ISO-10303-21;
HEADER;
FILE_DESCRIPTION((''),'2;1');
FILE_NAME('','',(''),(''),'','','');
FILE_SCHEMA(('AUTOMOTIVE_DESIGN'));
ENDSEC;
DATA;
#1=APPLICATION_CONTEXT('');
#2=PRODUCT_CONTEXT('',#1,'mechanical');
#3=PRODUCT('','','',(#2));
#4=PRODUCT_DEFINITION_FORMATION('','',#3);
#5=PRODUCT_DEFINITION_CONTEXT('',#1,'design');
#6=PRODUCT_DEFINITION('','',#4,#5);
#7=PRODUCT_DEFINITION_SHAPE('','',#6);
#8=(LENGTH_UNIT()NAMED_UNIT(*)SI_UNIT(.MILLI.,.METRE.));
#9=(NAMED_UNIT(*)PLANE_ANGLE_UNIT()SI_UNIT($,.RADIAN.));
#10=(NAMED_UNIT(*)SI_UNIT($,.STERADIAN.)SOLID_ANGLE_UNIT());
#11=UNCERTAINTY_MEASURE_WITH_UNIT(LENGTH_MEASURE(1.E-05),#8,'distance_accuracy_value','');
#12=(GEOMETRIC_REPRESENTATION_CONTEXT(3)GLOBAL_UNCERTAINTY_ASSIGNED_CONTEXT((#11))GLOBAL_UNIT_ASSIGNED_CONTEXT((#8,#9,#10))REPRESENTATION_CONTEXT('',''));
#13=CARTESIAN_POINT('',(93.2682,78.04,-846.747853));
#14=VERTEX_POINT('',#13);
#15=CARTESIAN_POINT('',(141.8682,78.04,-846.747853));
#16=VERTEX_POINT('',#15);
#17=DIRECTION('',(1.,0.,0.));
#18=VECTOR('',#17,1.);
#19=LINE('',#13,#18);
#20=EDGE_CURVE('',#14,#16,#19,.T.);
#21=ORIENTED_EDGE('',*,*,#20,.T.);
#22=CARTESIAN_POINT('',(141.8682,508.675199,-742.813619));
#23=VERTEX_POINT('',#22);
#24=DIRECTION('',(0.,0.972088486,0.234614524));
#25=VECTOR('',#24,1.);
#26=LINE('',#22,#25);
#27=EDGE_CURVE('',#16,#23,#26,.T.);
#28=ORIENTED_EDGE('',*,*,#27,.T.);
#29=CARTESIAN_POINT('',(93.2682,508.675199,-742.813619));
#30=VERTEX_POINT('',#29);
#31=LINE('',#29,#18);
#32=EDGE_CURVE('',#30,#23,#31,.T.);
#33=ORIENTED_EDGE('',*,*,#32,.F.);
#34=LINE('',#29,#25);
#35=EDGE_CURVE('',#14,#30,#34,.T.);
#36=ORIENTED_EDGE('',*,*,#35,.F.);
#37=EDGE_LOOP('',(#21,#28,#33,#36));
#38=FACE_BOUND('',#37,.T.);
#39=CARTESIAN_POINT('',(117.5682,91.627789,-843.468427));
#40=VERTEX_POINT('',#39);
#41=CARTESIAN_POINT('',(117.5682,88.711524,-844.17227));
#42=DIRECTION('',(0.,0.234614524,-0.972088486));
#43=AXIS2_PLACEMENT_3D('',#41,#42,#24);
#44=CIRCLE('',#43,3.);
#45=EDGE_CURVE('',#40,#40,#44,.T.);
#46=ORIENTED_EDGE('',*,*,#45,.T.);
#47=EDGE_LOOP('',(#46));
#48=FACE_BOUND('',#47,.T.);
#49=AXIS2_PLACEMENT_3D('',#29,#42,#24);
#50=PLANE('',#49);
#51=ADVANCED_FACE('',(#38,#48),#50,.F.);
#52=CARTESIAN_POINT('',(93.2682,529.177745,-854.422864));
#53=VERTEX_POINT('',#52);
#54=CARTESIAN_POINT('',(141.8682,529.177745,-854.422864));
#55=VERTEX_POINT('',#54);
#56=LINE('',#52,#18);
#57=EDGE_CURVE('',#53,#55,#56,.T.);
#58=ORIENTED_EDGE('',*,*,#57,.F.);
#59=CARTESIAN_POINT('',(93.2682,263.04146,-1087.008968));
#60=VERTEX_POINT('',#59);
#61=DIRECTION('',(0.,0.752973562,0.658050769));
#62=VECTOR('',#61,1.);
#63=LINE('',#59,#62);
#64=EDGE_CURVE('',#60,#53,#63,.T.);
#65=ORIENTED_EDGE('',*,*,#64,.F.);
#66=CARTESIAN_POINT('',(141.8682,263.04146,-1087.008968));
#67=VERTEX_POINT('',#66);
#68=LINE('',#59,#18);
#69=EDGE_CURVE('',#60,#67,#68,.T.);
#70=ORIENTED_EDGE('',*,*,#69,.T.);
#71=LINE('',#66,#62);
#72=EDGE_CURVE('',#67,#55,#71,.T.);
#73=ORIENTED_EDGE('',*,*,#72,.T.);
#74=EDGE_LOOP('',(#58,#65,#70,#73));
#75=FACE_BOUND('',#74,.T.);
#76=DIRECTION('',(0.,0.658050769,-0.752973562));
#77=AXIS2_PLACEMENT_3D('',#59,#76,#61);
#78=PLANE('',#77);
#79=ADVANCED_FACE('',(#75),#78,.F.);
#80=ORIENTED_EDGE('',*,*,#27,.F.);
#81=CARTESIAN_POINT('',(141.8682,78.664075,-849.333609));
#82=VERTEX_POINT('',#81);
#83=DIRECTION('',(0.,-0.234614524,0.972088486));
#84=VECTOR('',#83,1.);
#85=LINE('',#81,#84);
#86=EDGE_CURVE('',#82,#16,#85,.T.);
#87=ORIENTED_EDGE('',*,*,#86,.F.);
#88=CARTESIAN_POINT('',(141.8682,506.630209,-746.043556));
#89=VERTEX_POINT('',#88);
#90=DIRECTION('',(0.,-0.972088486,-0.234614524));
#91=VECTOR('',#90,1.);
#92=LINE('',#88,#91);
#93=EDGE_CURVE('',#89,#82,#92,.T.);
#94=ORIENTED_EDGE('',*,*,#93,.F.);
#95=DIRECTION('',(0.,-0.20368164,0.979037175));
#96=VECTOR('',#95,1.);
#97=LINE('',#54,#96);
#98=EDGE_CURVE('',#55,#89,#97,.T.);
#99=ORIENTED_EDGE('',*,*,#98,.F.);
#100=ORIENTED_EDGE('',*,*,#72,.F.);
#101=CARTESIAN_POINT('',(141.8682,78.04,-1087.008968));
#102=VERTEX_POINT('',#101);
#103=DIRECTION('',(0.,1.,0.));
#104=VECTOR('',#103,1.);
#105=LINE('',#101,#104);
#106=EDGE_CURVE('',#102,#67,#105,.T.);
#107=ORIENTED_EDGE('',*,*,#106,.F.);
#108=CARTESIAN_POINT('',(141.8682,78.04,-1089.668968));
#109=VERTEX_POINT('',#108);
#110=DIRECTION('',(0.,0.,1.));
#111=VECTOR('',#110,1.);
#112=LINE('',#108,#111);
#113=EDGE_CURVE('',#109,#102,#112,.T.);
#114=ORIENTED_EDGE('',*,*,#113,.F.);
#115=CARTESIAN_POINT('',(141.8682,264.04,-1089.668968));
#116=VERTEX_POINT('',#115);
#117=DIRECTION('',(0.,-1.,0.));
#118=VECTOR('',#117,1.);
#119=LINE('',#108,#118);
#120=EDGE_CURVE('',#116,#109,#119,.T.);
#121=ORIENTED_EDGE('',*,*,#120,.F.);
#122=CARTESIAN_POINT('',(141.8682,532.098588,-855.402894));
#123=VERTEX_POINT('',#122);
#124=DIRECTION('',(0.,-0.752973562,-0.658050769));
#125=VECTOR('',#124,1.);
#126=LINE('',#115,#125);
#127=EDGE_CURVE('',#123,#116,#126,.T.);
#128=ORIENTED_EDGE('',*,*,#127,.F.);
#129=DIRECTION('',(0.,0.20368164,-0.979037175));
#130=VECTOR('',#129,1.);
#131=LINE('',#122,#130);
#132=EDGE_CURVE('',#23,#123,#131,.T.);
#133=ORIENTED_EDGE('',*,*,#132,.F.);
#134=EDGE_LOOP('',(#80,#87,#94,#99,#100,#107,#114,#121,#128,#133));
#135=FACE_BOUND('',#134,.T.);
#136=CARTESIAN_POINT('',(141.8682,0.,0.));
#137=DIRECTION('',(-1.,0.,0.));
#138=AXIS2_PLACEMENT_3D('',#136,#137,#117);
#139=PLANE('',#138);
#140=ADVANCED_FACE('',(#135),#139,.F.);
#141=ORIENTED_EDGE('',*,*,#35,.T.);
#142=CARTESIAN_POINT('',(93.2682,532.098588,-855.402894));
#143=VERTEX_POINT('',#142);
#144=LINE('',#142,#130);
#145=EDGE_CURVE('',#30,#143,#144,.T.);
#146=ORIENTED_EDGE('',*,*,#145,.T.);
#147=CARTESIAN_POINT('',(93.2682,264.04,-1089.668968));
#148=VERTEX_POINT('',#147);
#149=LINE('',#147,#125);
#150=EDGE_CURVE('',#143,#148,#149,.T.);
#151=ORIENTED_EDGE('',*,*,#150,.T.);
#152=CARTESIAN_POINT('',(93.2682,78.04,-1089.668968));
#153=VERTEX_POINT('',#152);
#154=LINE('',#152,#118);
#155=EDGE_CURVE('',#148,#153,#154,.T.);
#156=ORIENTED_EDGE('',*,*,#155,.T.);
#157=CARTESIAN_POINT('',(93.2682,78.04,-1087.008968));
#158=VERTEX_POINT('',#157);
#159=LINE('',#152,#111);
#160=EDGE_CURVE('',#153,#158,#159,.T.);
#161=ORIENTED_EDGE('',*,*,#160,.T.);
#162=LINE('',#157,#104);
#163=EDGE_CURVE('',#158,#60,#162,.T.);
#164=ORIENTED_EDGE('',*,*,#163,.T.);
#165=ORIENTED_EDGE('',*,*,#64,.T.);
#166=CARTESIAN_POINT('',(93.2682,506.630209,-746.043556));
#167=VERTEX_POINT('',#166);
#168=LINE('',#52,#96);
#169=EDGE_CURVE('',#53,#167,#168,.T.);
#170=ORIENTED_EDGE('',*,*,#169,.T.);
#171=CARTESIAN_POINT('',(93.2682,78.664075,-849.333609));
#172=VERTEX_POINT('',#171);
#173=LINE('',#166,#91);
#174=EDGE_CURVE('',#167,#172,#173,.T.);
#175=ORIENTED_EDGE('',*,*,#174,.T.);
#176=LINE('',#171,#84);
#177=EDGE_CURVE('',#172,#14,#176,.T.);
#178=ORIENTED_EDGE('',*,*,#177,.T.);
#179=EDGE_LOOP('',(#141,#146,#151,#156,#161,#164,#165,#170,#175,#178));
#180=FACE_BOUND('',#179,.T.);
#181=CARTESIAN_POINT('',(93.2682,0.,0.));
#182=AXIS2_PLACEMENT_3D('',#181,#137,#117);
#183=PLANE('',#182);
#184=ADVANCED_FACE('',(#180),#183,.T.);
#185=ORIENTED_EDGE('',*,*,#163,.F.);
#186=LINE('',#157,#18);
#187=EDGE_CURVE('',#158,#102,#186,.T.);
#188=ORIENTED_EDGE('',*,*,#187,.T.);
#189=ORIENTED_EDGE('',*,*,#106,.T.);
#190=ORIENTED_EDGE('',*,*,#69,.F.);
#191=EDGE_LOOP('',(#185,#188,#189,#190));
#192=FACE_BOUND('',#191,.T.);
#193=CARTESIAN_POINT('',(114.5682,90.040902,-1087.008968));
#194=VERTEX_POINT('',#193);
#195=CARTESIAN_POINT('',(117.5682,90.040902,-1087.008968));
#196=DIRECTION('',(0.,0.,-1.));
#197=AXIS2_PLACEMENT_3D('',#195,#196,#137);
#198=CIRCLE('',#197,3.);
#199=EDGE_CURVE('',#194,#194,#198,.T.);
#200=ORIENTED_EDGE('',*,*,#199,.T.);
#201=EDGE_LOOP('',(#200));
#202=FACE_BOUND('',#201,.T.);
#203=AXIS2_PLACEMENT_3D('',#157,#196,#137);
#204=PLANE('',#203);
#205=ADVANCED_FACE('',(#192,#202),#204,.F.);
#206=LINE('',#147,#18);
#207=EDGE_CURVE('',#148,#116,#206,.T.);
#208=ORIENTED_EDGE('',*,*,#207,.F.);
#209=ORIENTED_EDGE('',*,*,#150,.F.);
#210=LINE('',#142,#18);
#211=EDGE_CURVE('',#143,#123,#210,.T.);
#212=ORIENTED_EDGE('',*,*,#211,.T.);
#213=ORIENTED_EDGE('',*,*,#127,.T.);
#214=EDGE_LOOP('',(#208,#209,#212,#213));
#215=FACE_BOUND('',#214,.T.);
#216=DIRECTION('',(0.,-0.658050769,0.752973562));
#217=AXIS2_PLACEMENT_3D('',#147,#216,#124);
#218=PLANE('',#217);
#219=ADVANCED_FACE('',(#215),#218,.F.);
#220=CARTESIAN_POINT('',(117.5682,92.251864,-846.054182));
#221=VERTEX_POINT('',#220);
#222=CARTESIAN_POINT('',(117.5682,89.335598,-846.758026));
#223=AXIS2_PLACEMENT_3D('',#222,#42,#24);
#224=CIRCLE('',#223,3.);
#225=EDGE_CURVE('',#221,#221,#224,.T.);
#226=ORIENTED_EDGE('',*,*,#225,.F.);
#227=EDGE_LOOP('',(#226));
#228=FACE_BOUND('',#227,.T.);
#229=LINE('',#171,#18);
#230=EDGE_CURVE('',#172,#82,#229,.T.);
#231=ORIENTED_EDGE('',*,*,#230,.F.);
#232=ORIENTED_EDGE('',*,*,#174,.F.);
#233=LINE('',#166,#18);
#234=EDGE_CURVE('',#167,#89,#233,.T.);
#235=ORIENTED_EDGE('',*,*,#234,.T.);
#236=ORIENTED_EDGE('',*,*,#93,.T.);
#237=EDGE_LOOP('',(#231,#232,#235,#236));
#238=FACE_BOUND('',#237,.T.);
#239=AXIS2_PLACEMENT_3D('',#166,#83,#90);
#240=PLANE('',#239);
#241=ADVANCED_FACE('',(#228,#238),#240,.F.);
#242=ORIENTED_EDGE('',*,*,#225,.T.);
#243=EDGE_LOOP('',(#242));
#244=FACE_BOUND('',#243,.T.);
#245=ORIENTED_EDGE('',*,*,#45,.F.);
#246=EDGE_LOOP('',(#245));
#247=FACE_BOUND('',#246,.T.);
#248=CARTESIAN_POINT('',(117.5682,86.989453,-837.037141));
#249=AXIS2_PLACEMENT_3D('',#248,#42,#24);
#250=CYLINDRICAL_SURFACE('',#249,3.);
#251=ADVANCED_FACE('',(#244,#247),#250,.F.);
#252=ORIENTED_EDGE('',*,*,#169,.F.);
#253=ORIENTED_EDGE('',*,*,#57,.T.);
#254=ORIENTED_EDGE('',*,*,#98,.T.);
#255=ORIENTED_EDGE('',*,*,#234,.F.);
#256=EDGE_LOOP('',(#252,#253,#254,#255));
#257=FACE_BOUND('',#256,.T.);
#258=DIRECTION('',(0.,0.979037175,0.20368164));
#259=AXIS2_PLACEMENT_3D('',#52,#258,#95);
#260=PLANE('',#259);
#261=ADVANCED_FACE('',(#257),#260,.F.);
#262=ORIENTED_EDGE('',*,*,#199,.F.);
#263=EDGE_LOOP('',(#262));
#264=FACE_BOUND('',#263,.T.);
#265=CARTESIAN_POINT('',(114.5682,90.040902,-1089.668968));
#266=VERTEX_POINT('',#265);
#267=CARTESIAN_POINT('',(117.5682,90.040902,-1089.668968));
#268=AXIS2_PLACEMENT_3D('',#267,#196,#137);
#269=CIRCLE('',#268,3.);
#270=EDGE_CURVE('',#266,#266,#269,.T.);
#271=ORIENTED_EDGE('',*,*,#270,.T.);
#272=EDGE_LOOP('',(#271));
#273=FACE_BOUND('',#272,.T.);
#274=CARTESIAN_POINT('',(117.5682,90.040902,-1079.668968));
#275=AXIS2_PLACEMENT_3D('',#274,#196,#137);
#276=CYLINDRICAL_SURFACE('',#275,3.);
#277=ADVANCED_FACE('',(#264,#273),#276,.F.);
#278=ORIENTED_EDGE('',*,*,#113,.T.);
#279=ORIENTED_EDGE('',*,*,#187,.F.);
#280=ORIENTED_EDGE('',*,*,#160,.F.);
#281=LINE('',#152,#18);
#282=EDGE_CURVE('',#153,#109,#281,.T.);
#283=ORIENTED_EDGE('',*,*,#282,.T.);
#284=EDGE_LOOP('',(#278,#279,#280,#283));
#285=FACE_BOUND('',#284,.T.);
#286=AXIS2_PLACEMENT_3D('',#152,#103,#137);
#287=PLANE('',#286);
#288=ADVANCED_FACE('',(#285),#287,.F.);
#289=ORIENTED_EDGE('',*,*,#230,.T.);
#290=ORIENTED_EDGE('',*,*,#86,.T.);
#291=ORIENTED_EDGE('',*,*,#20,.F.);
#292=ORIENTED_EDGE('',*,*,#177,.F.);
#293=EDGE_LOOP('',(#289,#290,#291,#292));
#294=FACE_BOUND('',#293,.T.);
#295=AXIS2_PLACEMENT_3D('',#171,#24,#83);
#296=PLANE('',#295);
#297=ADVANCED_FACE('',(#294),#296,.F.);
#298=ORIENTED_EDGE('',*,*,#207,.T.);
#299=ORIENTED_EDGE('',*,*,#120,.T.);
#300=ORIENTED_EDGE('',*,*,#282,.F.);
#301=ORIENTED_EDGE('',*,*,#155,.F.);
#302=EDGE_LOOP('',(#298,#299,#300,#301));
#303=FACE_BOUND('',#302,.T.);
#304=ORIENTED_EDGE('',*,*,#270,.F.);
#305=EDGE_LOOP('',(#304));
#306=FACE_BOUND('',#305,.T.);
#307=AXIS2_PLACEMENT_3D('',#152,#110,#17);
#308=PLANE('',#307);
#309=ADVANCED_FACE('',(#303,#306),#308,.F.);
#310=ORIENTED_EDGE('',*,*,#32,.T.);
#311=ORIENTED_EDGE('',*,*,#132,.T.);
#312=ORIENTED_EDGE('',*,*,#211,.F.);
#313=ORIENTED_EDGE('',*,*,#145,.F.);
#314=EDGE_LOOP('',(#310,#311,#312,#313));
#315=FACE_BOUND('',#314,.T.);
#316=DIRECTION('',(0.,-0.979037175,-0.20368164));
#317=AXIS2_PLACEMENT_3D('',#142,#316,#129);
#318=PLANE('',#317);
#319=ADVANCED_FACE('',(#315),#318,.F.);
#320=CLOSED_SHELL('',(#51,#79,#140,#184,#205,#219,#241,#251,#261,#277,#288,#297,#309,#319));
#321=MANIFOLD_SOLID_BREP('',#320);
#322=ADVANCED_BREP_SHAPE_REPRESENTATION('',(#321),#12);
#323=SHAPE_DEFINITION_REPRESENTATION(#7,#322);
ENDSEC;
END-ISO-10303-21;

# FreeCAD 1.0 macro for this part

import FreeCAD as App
import Part
import Sketcher

doc = App.newDocument("Part")
params = doc.addObject("Spreadsheet::Sheet", "Params")
for row, (alias, value) in enumerate([
    ("sketch1_width", "186 mm"),
    ("sketch1_length", "443 mm"),
    ("sketch1_length2", "115 mm"),
    ("sketch1_length3", "356 mm"),
    ("sketch1_height", "2.66 mm"),
    ("pad1_length", "48.6 mm"),
    ("sketch2_diameter", "6 mm"),
    ("pocket1_length", "10 mm"),
    ("sketch3_diameter", "6 mm"),
    ("pocket2_length", "10 mm"),
], start=1):
    params.set(f"A{row}", alias)
    params.set(f"B{row}", "=" + value)
    params.setAlias(f"B{row}", alias)

body = doc.addObject("PartDesign::Body", "Body")

sketch1 = body.newObject("Sketcher::SketchObject", "Sketch")
sketch1.AttachmentSupport = (doc.getObject("YZ_Plane"), [""])
sketch1.MapMode = "FlatFace"
sketch1.AttachmentOffset = App.Placement(App.Vector(0, 0, 117.5682), App.Rotation())
sketch1.addGeometry([
    Part.LineSegment(App.Vector(264.04, -1089.668968, 0), App.Vector(78.04, -1089.668968, 0)),
    Part.LineSegment(App.Vector(78.04, -1089.668968, 0), App.Vector(78.04, -1087.008968, 0)),
    Part.LineSegment(App.Vector(78.04, -1087.008968, 0), App.Vector(263.04146, -1087.008968, 0)),
    Part.LineSegment(App.Vector(263.04146, -1087.008968, 0), App.Vector(529.177745, -854.422864, 0)),
    Part.LineSegment(App.Vector(529.177745, -854.422864, 0), App.Vector(506.630209, -746.043556, 0)),
    Part.LineSegment(App.Vector(506.630209, -746.043556, 0), App.Vector(78.664075, -849.333609, 0)),
    Part.LineSegment(App.Vector(78.664075, -849.333609, 0), App.Vector(78.04, -846.747853, 0)),
    Part.LineSegment(App.Vector(78.04, -846.747853, 0), App.Vector(508.675199, -742.813619, 0)),
    Part.LineSegment(App.Vector(508.675199, -742.813619, 0), App.Vector(532.098588, -855.402894, 0)),
    Part.LineSegment(App.Vector(532.098588, -855.402894, 0), App.Vector(264.04, -1089.668968, 0)),
], False)
sketch1.addConstraint([
    Sketcher.Constraint("Coincident", 0, 2, 1, 1),
    Sketcher.Constraint("Coincident", 1, 2, 2, 1),
    Sketcher.Constraint("Coincident", 2, 2, 3, 1),
    Sketcher.Constraint("Coincident", 3, 2, 4, 1),
    Sketcher.Constraint("Coincident", 4, 2, 5, 1),
    Sketcher.Constraint("Coincident", 5, 2, 6, 1),
    Sketcher.Constraint("Coincident", 6, 2, 7, 1),
    Sketcher.Constraint("Coincident", 7, 2, 8, 1),
    Sketcher.Constraint("Coincident", 8, 2, 9, 1),
    Sketcher.Constraint("Coincident", 9, 2, 0, 1),
    Sketcher.Constraint("Horizontal", 0),
    Sketcher.Constraint("Vertical", 1),
    Sketcher.Constraint("Horizontal", 2),
    Sketcher.Constraint("Perpendicular", 5, 6),
    Sketcher.Constraint("Perpendicular", 6, 7),
    Sketcher.Constraint("Parallel", 4, 8),
    Sketcher.Constraint("Parallel", 3, 9),
    Sketcher.Constraint("Vertical", 1, 2, 6, 2),
    Sketcher.Constraint("DistanceX", 0, 2, 0, 1, 186.0),
    Sketcher.Constraint("Distance", 7, 443.0),
    Sketcher.Constraint("Distance", 8, 115.0),
    Sketcher.Constraint("Distance", 9, 356.0),
    Sketcher.Constraint("DistanceY", 1, 1, 1, 2, 2.66),
    Sketcher.Constraint("Distance", 6, 2.66),
    Sketcher.Constraint("DistanceX", -1, 1, 0, 2, 78.04),
    Sketcher.Constraint("Distance", 5, 440.254299),
    Sketcher.Constraint("DistanceX", 2, 1, 2, 2, 185.00146),
    Sketcher.Constraint("DistanceX", -1, 1, 7, 2, 508.675199),
    Sketcher.Constraint("Distance", 3, 353.447051),
    Sketcher.Constraint("DistanceY", 0, 2, -1, 1, 1089.668968),
])
sketch1.setExpression("Constraints[18]", "Params.sketch1_width")
sketch1.setExpression("Constraints[19]", "Params.sketch1_length")
sketch1.setExpression("Constraints[20]", "Params.sketch1_length2")
sketch1.setExpression("Constraints[21]", "Params.sketch1_length3")
sketch1.setExpression("Constraints[22]", "Params.sketch1_height")
pad1 = body.newObject("PartDesign::Pad", "Pad")
pad1.Profile = sketch1
pad1.setExpression("Length", "Params.pad1_length")
pad1.Midplane = True

sketch2 = body.newObject("Sketcher::SketchObject", "Sketch001")
sketch2.AttachmentSupport = (doc.getObject("XY_Plane"), [""])
sketch2.MapMode = "FlatFace"
sketch2.AttachmentOffset = App.Placement(App.Vector(0, 0, -1089.668968), App.Rotation())
sketch2.addGeometry(Part.Circle(App.Vector(117.5682, 90.040902, 0), App.Vector(0, 0, 1), 3), False)
sketch2.addConstraint([
    Sketcher.Constraint("Diameter", 0, 6.0),
    Sketcher.Constraint("DistanceX", -1, 1, 0, 3, 117.5682),
    Sketcher.Constraint("DistanceY", -1, 1, 0, 3, 90.040902),
])
sketch2.setExpression("Constraints[0]", "Params.sketch2_diameter")
pocket1 = body.newObject("PartDesign::Pocket", "Pocket")
pocket1.Profile = sketch2
pocket1.setExpression("Length", "Params.pocket1_length")
pocket1.Reversed = True

sketch3 = body.newObject("Sketcher::SketchObject", "Sketch002")
sketch3.Placement = App.Placement(App.Vector(0, 198.034168, -820.523518), App.Rotation(App.Vector(-1, 0, 0), App.Vector(0, 0.972088486, 0.234614524), App.Vector(0, 0.234614524, -0.972088486), "ZXY"))
sketch3.addGeometry(Part.Circle(App.Vector(-117.5682, -111.819625, 0), App.Vector(0, 0, 1), 3), False)
sketch3.addConstraint([
    Sketcher.Constraint("Diameter", 0, 6.0),
    Sketcher.Constraint("DistanceX", 0, 3, -1, 1, 117.5682),
    Sketcher.Constraint("DistanceY", 0, 3, -1, 1, 111.819625),
])
sketch3.setExpression("Constraints[0]", "Params.sketch3_diameter")
pocket2 = body.newObject("PartDesign::Pocket", "Pocket001")
pocket2.Profile = sketch3
pocket2.setExpression("Length", "Params.pocket2_length")

doc.recompute()
